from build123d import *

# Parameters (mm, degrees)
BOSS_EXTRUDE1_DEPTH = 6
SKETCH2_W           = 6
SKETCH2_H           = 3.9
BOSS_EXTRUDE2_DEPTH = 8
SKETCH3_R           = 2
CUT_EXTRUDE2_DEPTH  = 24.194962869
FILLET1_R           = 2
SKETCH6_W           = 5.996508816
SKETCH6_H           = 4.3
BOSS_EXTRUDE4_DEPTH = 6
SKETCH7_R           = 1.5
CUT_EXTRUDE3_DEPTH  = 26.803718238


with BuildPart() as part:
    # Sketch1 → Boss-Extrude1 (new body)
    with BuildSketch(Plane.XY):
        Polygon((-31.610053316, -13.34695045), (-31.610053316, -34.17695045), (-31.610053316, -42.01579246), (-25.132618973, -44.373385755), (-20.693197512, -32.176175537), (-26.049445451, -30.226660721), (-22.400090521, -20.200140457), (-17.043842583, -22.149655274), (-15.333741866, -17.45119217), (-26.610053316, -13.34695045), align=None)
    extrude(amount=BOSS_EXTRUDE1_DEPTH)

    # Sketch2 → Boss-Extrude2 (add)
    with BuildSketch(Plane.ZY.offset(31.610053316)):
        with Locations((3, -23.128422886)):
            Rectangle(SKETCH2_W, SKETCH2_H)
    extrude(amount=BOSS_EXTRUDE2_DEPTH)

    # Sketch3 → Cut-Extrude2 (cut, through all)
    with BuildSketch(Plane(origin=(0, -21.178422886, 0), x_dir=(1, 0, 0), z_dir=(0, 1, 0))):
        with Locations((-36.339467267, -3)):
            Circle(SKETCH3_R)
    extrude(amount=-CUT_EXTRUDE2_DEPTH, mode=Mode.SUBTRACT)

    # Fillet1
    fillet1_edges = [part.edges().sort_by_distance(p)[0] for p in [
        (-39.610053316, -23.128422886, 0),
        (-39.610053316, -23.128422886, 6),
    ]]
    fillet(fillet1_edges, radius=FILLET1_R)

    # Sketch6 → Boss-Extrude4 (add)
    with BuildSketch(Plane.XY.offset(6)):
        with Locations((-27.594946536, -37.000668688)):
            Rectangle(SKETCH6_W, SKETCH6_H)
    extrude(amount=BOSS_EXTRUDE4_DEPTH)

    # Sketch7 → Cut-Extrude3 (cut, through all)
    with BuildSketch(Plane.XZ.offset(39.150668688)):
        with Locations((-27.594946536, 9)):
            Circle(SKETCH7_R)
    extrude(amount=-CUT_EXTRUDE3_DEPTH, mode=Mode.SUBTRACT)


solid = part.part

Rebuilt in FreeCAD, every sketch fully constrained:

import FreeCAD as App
import Part
import Sketcher
Q = App.Units.Quantity


def edges_at(feature, points):
    """Names of the edges that pass closest to the given points."""
    edges = feature.Shape.Edges
    near = lambda p: min(range(len(edges)), key=lambda i: edges[i].distToShape(Part.Vertex(*p))[0])
    return sorted({f"Edge{near(p) + 1}" for p in points})


def add_polygon(sketch, points):
    """Adds a closed chain of lines whose ends are joined by coincident constraints."""
    first, n = sketch.GeometryCount, len(points)
    for a, b in zip(points, points[1:] + points[:1]):
        sketch.addGeometry(Part.LineSegment(App.Vector(*a, 0), App.Vector(*b, 0)), False)
    for i in range(n):
        sketch.addConstraint(Sketcher.Constraint("Coincident", first + i, 2, first + (i + 1) % n, 1))

doc = App.newDocument("Part")
params = doc.addObject("Spreadsheet::Sheet", "Params")
for row, (alias, value) in enumerate([
    ("sketch1_width", "5 mm"),
    ("sketch1_length", "5 mm"),
    ("sketch1_length2", "12 mm"),
    ("sketch1_length3", "5.7 mm"),
    ("sketch1_length4", "12.98 mm"),
    ("pad1_length", "6 mm"),
    ("sketch2_height", "6 mm"),
    ("sketch2_width", "3.9 mm"),
    ("pad2_length", "8 mm"),
    ("sketch3_diameter", "4 mm"),
    ("fillet_radius", "2 mm"),
    ("sketch4_height", "4.3 mm"),
    ("pad3_length", "6 mm"),
    ("sketch5_diameter", "3 mm"),
], start=1):
    params.set(f"A{row}", alias)
    params.set(f"B{row}", "=" + value)
    params.setAlias(f"B{row}", alias)

body = doc.addObject("PartDesign::Body", "Body")

sketch1 = doc.addObject("Sketcher::SketchObject", "Sketch")
body.addObject(sketch1)
sketch1.AttachmentSupport = (doc.XY_Plane, [""])
sketch1.MapMode = "FlatFace"
add_polygon(sketch1, [(-31.610053, -13.34695), (-31.610053, -42.015792), (-25.132619, -44.373386), (-20.693198, -32.176176), (-26.049445, -30.226661), (-22.400091, -20.20014), (-17.043843, -22.149655), (-15.333742, -17.451192), (-26.610053, -13.34695)])
sketch1.addConstraint(Sketcher.Constraint("Vertical", 0))
sketch1.addConstraint(Sketcher.Constraint("Horizontal", 8))
sketch1.addConstraint(Sketcher.Constraint("Perpendicular", 1, 2))
sketch1.addConstraint(Sketcher.Constraint("Perpendicular", 2, 3))
sketch1.addConstraint(Sketcher.Constraint("Perpendicular", 3, 4))
sketch1.addConstraint(Sketcher.Constraint("Perpendicular", 4, 5))
sketch1.addConstraint(Sketcher.Constraint("Perpendicular", 5, 6))
sketch1.addConstraint(Sketcher.Constraint("Perpendicular", 6, 7))
sketch1.addConstraint(Sketcher.Constraint("Equal", 3, 5))
sketch1.addConstraint(Sketcher.Constraint("DistanceX", 8, 2, 8, 1, 5.0))
sketch1.addConstraint(Sketcher.Constraint("Angle", 1, Q("-20 deg")))
sketch1.addConstraint(Sketcher.Constraint("Distance", 6, 5.0))
sketch1.addConstraint(Sketcher.Constraint("Distance", 7, 12.0))
sketch1.addConstraint(Sketcher.Constraint("Distance", 3, 5.7))
sketch1.addConstraint(Sketcher.Constraint("Distance", 2, 12.98))
sketch1.addConstraint(Sketcher.Constraint("Distance", 4, 10.67))
sketch1.addConstraint(Sketcher.Constraint("DistanceX", 1, 2, -1, 1, 25.132619))
sketch1.addConstraint(Sketcher.Constraint("DistanceY", 3, 2, -1, 1, 30.226661))
sketch1.setExpression("Constraints[18]", "Params.sketch1_width")
sketch1.setExpression("Constraints[20]", "Params.sketch1_length")
sketch1.setExpression("Constraints[21]", "Params.sketch1_length2")
sketch1.setExpression("Constraints[22]", "Params.sketch1_length3")
sketch1.setExpression("Constraints[23]", "Params.sketch1_length4")
pad1 = doc.addObject("PartDesign::Pad", "Pad")
body.addObject(pad1)
pad1.Profile = sketch1
pad1.setExpression("Length", "Params.pad1_length")

sketch2 = doc.addObject("Sketcher::SketchObject", "Sketch001")
body.addObject(sketch2)
sketch2.AttachmentSupport = (doc.YZ_Plane, [""])
sketch2.MapMode = "FlatFace"
sketch2.AttachmentOffset = App.Placement(App.Vector(0, 0, -31.610053), App.Rotation())
add_polygon(sketch2, [(-21.178423, 0), (-25.078423, 0), (-25.078423, 6), (-21.178423, 6)])
sketch2.addConstraint(Sketcher.Constraint("Horizontal", 0))
sketch2.addConstraint(Sketcher.Constraint("Vertical", 1))
sketch2.addConstraint(Sketcher.Constraint("Horizontal", 2))
sketch2.addConstraint(Sketcher.Constraint("Vertical", 3))
sketch2.addConstraint(Sketcher.Constraint("PointOnObject", 0, 2, -1))
sketch2.addConstraint(Sketcher.Constraint("DistanceY", 1, 1, 1, 2, 6.0))
sketch2.addConstraint(Sketcher.Constraint("DistanceX", 0, 2, 0, 1, 3.9))
sketch2.addConstraint(Sketcher.Constraint("DistanceX", 0, 2, -1, 1, 25.078423))
sketch2.setExpression("Constraints[9]", "Params.sketch2_height")
sketch2.setExpression("Constraints[10]", "Params.sketch2_width")
pad2 = doc.addObject("PartDesign::Pad", "Pad001")
body.addObject(pad2)
pad2.Profile = sketch2
pad2.setExpression("Length", "Params.pad2_length")
pad2.Reversed = True

sketch3 = doc.addObject("Sketcher::SketchObject", "Sketch002")
body.addObject(sketch3)
sketch3.AttachmentSupport = (doc.XZ_Plane, [""])
sketch3.MapMode = "FlatFace"
sketch3.AttachmentOffset = App.Placement(App.Vector(0, 0, 21.178423), App.Rotation())
sketch3.addGeometry(Part.Circle(App.Vector(-36.339467, 3, 0), App.Vector(0, 0, 1), 2), False)
sketch3.addConstraint(Sketcher.Constraint("Diameter", 0, 4.0))
sketch3.addConstraint(Sketcher.Constraint("DistanceY", -1, 1, 0, 3, 3.0))
sketch3.addConstraint(Sketcher.Constraint("DistanceX", 0, 3, -1, 1, 36.339467))
sketch3.setExpression("Constraints[0]", "Params.sketch3_diameter")
pocket1 = doc.addObject("PartDesign::Pocket", "Pocket")
body.addObject(pocket1)
pocket1.Profile = sketch3
pocket1.Type = "ThroughAll"
pocket1.Reversed = True
doc.recompute()

fillet = doc.addObject("PartDesign::Fillet", "Fillet")
body.addObject(fillet)
fillet.Base = (pocket1, edges_at(pocket1, [(-39.61, -23.128, 0), (-39.61, -23.128, 6)]))
fillet.setExpression("Radius", "Params.fillet_radius")

sketch4 = doc.addObject("Sketcher::SketchObject", "Sketch003")
body.addObject(sketch4)
sketch4.AttachmentSupport = (doc.XY_Plane, [""])
sketch4.MapMode = "FlatFace"
sketch4.AttachmentOffset = App.Placement(App.Vector(0, 0, 6), App.Rotation())
add_polygon(sketch4, [(-30.593201, -34.850669), (-30.593201, -39.150669), (-24.596692, -39.150669), (-24.596692, -34.850669)])
sketch4.addConstraint(Sketcher.Constraint("Vertical", 0))
sketch4.addConstraint(Sketcher.Constraint("Horizontal", 1))
sketch4.addConstraint(Sketcher.Constraint("Vertical", 2))
sketch4.addConstraint(Sketcher.Constraint("Horizontal", 3))
sketch4.addConstraint(Sketcher.Constraint("DistanceY", 0, 2, 0, 1, 4.3))
sketch4.addConstraint(Sketcher.Constraint("DistanceX", 1, 1, 1, 2, 5.996509))
sketch4.addConstraint(Sketcher.Constraint("DistanceX", 0, 2, -1, 1, 30.593201))
sketch4.addConstraint(Sketcher.Constraint("DistanceY", 0, 2, -1, 1, 39.150669))
sketch4.setExpression("Constraints[8]", "Params.sketch4_height")
pad3 = doc.addObject("PartDesign::Pad", "Pad002")
body.addObject(pad3)
pad3.Profile = sketch4
pad3.setExpression("Length", "Params.pad3_length")

sketch5 = doc.addObject("Sketcher::SketchObject", "Sketch004")
body.addObject(sketch5)
sketch5.AttachmentSupport = (doc.XZ_Plane, [""])
sketch5.MapMode = "FlatFace"
sketch5.AttachmentOffset = App.Placement(App.Vector(0, 0, 39.150669), App.Rotation())
sketch5.addGeometry(Part.Circle(App.Vector(-27.594947, 9, 0), App.Vector(0, 0, 1), 1.5), False)
sketch5.addConstraint(Sketcher.Constraint("Diameter", 0, 3.0))
sketch5.addConstraint(Sketcher.Constraint("DistanceY", -1, 1, 0, 3, 9.0))
sketch5.addConstraint(Sketcher.Constraint("DistanceX", 0, 3, -1, 1, 27.594947))
sketch5.setExpression("Constraints[0]", "Params.sketch5_diameter")
pocket2 = doc.addObject("PartDesign::Pocket", "Pocket001")
body.addObject(pocket2)
pocket2.Profile = sketch5
pocket2.Type = "ThroughAll"

doc.recompute()
